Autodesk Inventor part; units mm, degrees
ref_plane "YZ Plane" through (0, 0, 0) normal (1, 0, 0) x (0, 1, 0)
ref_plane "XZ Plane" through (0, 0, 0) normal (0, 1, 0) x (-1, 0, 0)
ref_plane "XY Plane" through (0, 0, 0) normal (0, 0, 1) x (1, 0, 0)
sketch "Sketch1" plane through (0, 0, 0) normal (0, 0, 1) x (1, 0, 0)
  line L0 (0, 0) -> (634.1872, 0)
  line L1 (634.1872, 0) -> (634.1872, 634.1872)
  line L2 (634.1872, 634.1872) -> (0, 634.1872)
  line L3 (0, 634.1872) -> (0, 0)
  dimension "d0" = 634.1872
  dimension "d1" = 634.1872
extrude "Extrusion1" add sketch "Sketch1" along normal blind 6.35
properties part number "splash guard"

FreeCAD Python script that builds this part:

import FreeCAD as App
import Part
import Sketcher
from FreeCAD import Vector
Q = App.Units.Quantity

doc = App.newDocument("Part")
body = doc.addObject("PartDesign::Body", "Body")

sketch1 = doc.addObject("Sketcher::SketchObject", "Sketch")
body.addObject(sketch1)
sketch1.AttachmentSupport = (doc.XY_Plane, [""])
sketch1.MapMode = "FlatFace"
sketch1.addGeometry(Part.LineSegment(Vector(0, 634, 0), Vector(0, 0, 0)), False)
sketch1.addGeometry(Part.LineSegment(Vector(0, 0, 0), Vector(634, 0, 0)), False)
sketch1.addGeometry(Part.LineSegment(Vector(634, 0, 0), Vector(634, 634, 0)), False)
sketch1.addGeometry(Part.LineSegment(Vector(634, 634, 0), Vector(0, 634, 0)), False)
sketch1.addConstraint(Sketcher.Constraint("Coincident", 0, 2, 1, 1))
sketch1.addConstraint(Sketcher.Constraint("Coincident", 1, 2, 2, 1))
sketch1.addConstraint(Sketcher.Constraint("Coincident", 2, 2, 3, 1))
sketch1.addConstraint(Sketcher.Constraint("Coincident", 3, 2, 0, 1))
sketch1.addConstraint(Sketcher.Constraint("Vertical", 0))
sketch1.addConstraint(Sketcher.Constraint("Horizontal", 1))
sketch1.addConstraint(Sketcher.Constraint("Vertical", 2))
sketch1.addConstraint(Sketcher.Constraint("Horizontal", 3))
sketch1.addConstraint(Sketcher.Constraint("Coincident", 0, 2, -1, 1))
sketch1.addConstraint(Sketcher.Constraint("Equal", 3, 0))
sketch1.addConstraint(Sketcher.Constraint("DistanceX", 1, 1, 1, 2, Q("24.968 in")))
pad1 = doc.addObject("PartDesign::Pad", "Pad")
body.addObject(pad1)
pad1.Profile = sketch1
pad1.Length = Q("0.25 in")

doc.recompute()
